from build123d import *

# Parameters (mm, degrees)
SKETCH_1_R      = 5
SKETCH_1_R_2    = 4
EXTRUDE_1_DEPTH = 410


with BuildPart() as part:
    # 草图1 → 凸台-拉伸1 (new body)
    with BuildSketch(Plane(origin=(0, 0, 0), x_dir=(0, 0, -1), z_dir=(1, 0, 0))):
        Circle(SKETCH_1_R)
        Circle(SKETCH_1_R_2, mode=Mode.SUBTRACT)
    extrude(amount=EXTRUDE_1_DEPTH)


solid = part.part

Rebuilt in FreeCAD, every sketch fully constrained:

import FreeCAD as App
import Part
import Sketcher
from FreeCAD import Vector
Q = App.Units.Quantity

doc = App.newDocument("Part")
body = doc.addObject("PartDesign::Body", "Body")

# Sketch on YZ plane
sketch1 = body.newObject("Sketcher::SketchObject", "Sketch")
sketch1.AttachmentSupport = (doc.getObject("YZ_Plane"), [""])
sketch1.MapMode = "FlatFace"
sketch1.addGeometry(Part.Circle(Vector(0, 0, 0), Vector(0, 0, 1), 5), False)
sketch1.addGeometry(Part.Circle(Vector(0, 0, 0), Vector(0, 0, 1), 4), False)
sketch1.addConstraint(Sketcher.Constraint("Coincident", 0, 3, -1, 1))
sketch1.addConstraint(Sketcher.Constraint("Coincident", 1, 3, -1, 1))
sketch1.addConstraint(Sketcher.Constraint("Diameter", 0, Q("10 mm")))
sketch1.addConstraint(Sketcher.Constraint("Diameter", 1, Q("8 mm")))
pad1 = body.newObject("PartDesign::Pad", "Pad")
pad1.Profile = sketch1
pad1.Length = 410

doc.recompute()
